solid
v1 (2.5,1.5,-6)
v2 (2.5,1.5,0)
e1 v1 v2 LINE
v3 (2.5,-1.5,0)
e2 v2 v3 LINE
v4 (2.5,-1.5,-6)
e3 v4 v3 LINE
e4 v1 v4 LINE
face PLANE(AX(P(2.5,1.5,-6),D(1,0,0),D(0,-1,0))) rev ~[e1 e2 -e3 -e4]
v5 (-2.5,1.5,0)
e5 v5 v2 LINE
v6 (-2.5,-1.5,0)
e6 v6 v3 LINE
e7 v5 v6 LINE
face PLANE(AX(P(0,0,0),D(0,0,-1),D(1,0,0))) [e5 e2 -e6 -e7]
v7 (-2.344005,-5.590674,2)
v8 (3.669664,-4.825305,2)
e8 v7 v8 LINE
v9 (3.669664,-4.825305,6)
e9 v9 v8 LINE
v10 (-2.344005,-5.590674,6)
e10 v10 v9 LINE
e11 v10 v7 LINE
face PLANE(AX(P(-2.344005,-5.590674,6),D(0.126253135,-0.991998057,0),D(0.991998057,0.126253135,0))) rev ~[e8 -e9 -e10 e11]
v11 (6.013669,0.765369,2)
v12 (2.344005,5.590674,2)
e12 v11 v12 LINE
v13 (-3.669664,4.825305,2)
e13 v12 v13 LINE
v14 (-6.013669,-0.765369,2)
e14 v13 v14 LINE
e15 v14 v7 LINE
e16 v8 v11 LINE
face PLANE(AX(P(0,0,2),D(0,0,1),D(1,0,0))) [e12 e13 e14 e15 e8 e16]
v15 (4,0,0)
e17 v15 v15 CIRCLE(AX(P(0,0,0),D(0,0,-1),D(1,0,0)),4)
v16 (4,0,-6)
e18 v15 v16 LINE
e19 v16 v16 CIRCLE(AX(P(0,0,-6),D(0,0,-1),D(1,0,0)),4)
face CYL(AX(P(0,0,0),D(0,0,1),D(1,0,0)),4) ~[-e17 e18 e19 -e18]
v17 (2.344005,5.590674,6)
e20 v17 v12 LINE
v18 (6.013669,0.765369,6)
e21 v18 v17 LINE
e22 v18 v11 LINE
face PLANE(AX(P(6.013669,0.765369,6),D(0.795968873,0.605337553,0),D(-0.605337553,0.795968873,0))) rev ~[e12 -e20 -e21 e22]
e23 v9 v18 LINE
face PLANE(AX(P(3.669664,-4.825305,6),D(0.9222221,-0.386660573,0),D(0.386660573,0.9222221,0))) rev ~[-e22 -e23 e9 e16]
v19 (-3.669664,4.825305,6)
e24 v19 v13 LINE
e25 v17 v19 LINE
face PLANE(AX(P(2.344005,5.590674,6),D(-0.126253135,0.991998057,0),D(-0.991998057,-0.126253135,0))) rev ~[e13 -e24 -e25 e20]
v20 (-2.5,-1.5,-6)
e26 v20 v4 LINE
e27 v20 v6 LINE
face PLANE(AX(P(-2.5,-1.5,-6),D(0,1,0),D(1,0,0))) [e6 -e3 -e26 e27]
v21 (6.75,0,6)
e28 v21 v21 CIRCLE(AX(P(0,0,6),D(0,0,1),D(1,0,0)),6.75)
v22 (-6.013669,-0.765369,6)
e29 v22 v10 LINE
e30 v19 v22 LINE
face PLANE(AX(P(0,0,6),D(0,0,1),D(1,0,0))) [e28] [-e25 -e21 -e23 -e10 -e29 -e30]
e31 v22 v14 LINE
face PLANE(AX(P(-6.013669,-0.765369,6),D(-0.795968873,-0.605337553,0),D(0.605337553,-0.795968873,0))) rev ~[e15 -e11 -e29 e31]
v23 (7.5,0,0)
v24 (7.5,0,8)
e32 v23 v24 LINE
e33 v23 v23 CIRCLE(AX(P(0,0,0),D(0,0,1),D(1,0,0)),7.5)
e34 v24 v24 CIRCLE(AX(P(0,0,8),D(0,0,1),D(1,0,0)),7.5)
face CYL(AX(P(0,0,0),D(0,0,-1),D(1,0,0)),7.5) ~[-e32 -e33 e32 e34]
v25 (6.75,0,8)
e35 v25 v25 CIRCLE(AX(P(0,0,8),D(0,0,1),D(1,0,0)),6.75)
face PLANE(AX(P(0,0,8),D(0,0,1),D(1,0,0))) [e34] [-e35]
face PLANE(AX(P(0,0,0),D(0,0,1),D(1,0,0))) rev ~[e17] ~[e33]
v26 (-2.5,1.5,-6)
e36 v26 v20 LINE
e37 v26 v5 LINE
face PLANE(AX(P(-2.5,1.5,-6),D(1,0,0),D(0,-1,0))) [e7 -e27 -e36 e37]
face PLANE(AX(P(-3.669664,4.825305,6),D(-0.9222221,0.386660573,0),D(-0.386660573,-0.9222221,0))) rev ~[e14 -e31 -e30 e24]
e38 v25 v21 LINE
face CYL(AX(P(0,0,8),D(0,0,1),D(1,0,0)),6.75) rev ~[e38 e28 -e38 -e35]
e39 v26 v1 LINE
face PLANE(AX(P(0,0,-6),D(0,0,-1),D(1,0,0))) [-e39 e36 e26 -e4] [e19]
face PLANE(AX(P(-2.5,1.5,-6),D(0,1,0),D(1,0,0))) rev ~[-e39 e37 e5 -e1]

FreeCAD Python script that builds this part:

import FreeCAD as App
import Part
import Sketcher
Q = App.Units.Quantity


def add_polygon(sketch, points):
    """Adds a closed chain of lines whose ends are joined by coincident constraints."""
    first, n = sketch.GeometryCount, len(points)
    for a, b in zip(points, points[1:] + points[:1]):
        sketch.addGeometry(Part.LineSegment(App.Vector(*a, 0), App.Vector(*b, 0)), False)
    for i in range(n):
        sketch.addConstraint(Sketcher.Constraint("Coincident", first + i, 2, first + (i + 1) % n, 1))

doc = App.newDocument("Part")
body = doc.addObject("PartDesign::Body", "Body")

# Sketch on XY plane
sketch1 = body.newObject("Sketcher::SketchObject", "Sketch")
sketch1.AttachmentSupport = (doc.getObject("XY_Plane"), [""])
sketch1.MapMode = "FlatFace"
sketch1.addGeometry(Part.Circle(App.Vector(0, 0, 0), App.Vector(0, 0, 1), 8), False)
sketch1.addConstraint([
    Sketcher.Constraint("Coincident", 0, 3, -1, 1),
    Sketcher.Constraint("Diameter", 0, Q("15 mm")),
])
pad1 = body.newObject("PartDesign::Pad", "Pad")
pad1.Profile = sketch1
pad1.Length = 8

# Sketch on XY plane
sketch2 = body.newObject("Sketcher::SketchObject", "Sketch001")
sketch2.AttachmentSupport = (doc.getObject("XY_Plane"), [""])
sketch2.MapMode = "FlatFace"
sketch2.AttachmentOffset = App.Placement(App.Vector(0, 0, 8), App.Rotation())
sketch2.addGeometry(Part.Circle(App.Vector(0, 0, 0), App.Vector(0, 0, 1), 7), False)
sketch2.addConstraint([
    Sketcher.Constraint("Coincident", 0, 3, -1, 1),
    Sketcher.Constraint("Diameter", 0, Q("13.5 mm")),
])
pocket1 = body.newObject("PartDesign::Pocket", "Pocket")
pocket1.Profile = sketch2
pocket1.Length = 2

# Sketch on XY plane
sketch3 = body.newObject("Sketcher::SketchObject", "Sketch002")
sketch3.AttachmentSupport = (doc.getObject("XY_Plane"), [""])
sketch3.MapMode = "FlatFace"
sketch3.AttachmentOffset = App.Placement(App.Vector(0, 0, 6), App.Rotation())
add_polygon(sketch3, [(6, 1), (2, 6), (-4, 5), (-6, -1), (-2, -6), (4, -5)])  # lines 0-5
sketch3.addConstraint([
    Sketcher.Constraint("Symmetric", 0, 2, 3, 2, -1, 1),
    Sketcher.Constraint("Symmetric", 1, 2, 4, 2, -1, 1),
    Sketcher.Constraint("Symmetric", 2, 2, 5, 2, -1, 1),
    Sketcher.Constraint("Equal", 0, 1),
    Sketcher.Constraint("Equal", 1, 2),
    Sketcher.Constraint("Distance", 0, Q("6.062178 mm")),
    Sketcher.Constraint("DistanceX", 2, 2, -1, 1, Q("6.013669 mm")),
    Sketcher.Constraint("DistanceY", 2, 2, -1, 1, Q("0.765369 mm")),
    Sketcher.Constraint("DistanceX", 1, 2, 0, 2, Q("6.013669 mm")),
])
pocket2 = body.newObject("PartDesign::Pocket", "Pocket001")
pocket2.Profile = sketch3
pocket2.Length = 4

# Sketch on XY plane
sketch4 = body.newObject("Sketcher::SketchObject", "Sketch003")
sketch4.AttachmentSupport = (doc.getObject("XY_Plane"), [""])
sketch4.MapMode = "FlatFace"
sketch4.addGeometry(Part.Circle(App.Vector(0, 0, 0), App.Vector(0, 0, 1), 4), False)
sketch4.addConstraint([
    Sketcher.Constraint("Coincident", 0, 3, -1, 1),
    Sketcher.Constraint("Diameter", 0, Q("8 mm")),
])
pad2 = body.newObject("PartDesign::Pad", "Pad001")
pad2.Profile = sketch4
pad2.Length = 6
pad2.Reversed = True

# Sketch on XY plane
sketch5 = body.newObject("Sketcher::SketchObject", "Sketch004")
sketch5.AttachmentSupport = (doc.getObject("XY_Plane"), [""])
sketch5.MapMode = "FlatFace"
sketch5.AttachmentOffset = App.Placement(App.Vector(0, 0, -6), App.Rotation())
add_polygon(sketch5, [(-2.5, -1.5), (-2.5, 1.5), (2.5, 1.5), (2.5, -1.5)])  # lines 0-3
sketch5.addConstraint([
    Sketcher.Constraint("Vertical", 0),
    Sketcher.Constraint("Horizontal", 1),
    Sketcher.Constraint("Vertical", 2),
    Sketcher.Constraint("Horizontal", 3),
    Sketcher.Constraint("Symmetric", 0, 2, 2, 2, -1, 1),
    Sketcher.Constraint("DistanceX", 1, 1, 1, 2, Q("5 mm")),
    Sketcher.Constraint("DistanceY", 0, 1, 0, 2, Q("3 mm")),
])
pocket3 = body.newObject("PartDesign::Pocket", "Pocket002")
pocket3.Profile = sketch5
pocket3.Length = 6
pocket3.Reversed = True

doc.recompute()
